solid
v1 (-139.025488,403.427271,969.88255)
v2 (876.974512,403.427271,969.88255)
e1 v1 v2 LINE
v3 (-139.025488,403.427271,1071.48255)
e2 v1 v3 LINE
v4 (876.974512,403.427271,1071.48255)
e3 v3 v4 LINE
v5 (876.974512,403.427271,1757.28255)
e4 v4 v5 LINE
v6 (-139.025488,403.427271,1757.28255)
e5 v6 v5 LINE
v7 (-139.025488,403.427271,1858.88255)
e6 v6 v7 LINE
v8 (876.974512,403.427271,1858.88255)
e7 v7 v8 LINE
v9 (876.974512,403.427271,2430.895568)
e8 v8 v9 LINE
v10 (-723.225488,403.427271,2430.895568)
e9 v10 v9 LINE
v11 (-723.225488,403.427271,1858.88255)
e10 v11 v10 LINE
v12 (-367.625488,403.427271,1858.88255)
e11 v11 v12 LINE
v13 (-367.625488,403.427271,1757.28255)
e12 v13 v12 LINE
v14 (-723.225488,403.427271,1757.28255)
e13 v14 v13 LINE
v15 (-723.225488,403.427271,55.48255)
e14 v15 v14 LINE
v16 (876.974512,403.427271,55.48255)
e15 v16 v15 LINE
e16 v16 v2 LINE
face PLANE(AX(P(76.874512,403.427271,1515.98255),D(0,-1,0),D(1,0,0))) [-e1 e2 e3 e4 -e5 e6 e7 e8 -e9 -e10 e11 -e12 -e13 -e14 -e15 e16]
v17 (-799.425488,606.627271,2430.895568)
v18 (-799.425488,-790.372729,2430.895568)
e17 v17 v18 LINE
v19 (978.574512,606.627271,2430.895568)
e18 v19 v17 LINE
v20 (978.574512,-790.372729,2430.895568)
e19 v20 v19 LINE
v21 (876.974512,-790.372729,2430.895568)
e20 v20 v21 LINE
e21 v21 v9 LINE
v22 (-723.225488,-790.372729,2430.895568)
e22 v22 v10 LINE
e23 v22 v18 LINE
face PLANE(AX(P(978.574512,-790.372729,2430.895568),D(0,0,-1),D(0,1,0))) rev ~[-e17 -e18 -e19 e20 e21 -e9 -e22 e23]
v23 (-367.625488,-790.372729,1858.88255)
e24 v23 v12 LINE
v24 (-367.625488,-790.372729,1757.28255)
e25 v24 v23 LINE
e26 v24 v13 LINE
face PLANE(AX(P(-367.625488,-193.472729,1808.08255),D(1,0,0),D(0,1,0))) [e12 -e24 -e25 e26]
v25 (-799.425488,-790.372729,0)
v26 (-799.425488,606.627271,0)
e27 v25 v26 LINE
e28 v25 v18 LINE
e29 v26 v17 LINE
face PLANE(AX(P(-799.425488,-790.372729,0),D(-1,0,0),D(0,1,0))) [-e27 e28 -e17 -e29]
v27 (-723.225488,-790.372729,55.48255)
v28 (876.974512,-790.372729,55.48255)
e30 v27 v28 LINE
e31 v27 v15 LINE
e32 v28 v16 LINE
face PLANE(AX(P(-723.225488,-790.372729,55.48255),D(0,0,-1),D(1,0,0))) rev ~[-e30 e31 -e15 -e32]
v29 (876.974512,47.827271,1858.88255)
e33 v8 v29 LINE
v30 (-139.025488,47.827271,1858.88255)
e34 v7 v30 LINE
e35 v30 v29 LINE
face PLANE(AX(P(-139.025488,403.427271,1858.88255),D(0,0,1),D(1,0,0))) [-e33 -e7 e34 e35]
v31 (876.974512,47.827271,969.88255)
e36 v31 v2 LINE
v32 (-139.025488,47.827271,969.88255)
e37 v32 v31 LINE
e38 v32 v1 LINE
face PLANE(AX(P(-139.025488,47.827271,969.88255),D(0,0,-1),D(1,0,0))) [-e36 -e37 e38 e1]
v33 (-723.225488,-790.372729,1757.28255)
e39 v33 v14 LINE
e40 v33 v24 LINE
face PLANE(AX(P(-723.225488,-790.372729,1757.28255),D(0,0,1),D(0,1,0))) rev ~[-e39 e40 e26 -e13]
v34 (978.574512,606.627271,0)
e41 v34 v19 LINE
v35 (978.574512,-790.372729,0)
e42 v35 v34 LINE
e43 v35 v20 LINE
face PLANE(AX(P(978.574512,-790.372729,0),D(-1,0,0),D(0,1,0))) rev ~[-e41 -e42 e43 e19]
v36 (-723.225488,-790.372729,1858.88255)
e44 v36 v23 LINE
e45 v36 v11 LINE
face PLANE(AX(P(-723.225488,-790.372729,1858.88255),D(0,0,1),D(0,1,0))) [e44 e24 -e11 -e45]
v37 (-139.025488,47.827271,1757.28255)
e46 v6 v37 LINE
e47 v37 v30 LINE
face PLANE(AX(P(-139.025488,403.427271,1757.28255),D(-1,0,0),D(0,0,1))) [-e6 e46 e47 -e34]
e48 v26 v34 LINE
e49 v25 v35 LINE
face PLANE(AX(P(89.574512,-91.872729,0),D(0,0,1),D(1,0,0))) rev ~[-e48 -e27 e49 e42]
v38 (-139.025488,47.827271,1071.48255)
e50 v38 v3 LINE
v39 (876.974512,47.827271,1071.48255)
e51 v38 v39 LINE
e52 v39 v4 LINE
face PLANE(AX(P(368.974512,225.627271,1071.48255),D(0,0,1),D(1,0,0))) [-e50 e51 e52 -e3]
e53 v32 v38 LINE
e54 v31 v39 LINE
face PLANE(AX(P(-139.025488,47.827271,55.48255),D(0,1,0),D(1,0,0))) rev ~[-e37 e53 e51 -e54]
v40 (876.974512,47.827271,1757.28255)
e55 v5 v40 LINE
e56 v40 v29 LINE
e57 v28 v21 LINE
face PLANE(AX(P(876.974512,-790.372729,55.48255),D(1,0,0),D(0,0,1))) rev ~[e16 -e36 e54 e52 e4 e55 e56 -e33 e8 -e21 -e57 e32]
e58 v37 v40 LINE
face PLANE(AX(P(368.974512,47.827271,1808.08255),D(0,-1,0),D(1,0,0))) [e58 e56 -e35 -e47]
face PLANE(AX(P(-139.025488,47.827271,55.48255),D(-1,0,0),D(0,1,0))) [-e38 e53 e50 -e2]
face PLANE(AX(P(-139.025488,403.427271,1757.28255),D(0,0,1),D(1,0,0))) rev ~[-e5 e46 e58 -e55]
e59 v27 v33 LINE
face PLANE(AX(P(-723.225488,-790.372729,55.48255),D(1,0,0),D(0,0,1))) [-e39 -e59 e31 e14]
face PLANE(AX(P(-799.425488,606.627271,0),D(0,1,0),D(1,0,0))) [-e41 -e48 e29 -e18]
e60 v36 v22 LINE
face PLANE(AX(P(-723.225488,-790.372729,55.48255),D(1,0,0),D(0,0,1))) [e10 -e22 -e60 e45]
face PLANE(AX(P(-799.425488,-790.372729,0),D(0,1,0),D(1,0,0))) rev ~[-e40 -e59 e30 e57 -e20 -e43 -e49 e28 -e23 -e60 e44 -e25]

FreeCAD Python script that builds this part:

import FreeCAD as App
import Part
import Sketcher

V = App.Vector
Q = App.Units.Quantity


def add_polygon(sketch, points):
    """Adds a closed chain of lines whose ends are joined by coincident constraints."""
    first, n = sketch.GeometryCount, len(points)
    for a, b in zip(points, points[1:] + points[:1]):
        sketch.addGeometry(Part.LineSegment(App.Vector(*a, 0), App.Vector(*b, 0)), False)
    for i in range(n):
        sketch.addConstraint(Sketcher.Constraint("Coincident", first + i, 2, first + (i + 1) % n, 1))

doc = App.newDocument("Part")
params = doc.addObject("Spreadsheet::Sheet", "Params")
for row, (alias, value) in enumerate([
    ("sketch1_width", "70 in"),
    ("sketch1_height", "55 in"),
    ("pad1_length", "2976.48255 mm"),
    ("sketch2_width", "63 in"),
    ("sketch2_height", "115 in"),
    ("pocket1_length", "47 in"),
    ("sketch3_width", "40 in"),
    ("sketch3_height", "14 in"),
    ("pad2_length", "40 in"),
    ("sketch4_width", "40 in"),
    ("sketch4_height", "36 in"),
    ("pocket2_length", "14 in"),
    ("sketch5_width", "47 in"),
    ("sketch5_height", "4 in"),
    ("pad3_length", "14 in"),
    ("sketch6_width", "40 in"),
    ("sketch6_height", "4 in"),
    ("pad4_length", "14 in"),
    ("sketch7_width", "55 in"),
    ("pocket3_length", "100 in"),
], start=1):
    params.set(f"A{row}", alias)
    params.set(f"B{row}", "=" + value)
    params.setAlias(f"B{row}", alias)

body = doc.addObject("PartDesign::Body", "Body")

sketch1 = body.newObject("Sketcher::SketchObject", "Sketch")
sketch1.AttachmentSupport = (doc.getObject("XY_Plane"), [""])
sketch1.MapMode = "FlatFace"
add_polygon(sketch1, [(-799, 607), (-799, -790), (979, -790), (979, 607)])
sketch1.addConstraint(Sketcher.Constraint("Vertical", 0))
sketch1.addConstraint(Sketcher.Constraint("Horizontal", 1))
sketch1.addConstraint(Sketcher.Constraint("Vertical", 2))
sketch1.addConstraint(Sketcher.Constraint("Horizontal", 3))
sketch1.addConstraint(Sketcher.Constraint("DistanceX", 1, 1, 1, 2, Q("70 in")))
sketch1.addConstraint(Sketcher.Constraint("DistanceY", 0, 2, 0, 1, Q("55 in")))
sketch1.addConstraint(Sketcher.Constraint("DistanceX", 0, 2, -1, 1, Q("799.425488 mm")))
sketch1.addConstraint(Sketcher.Constraint("DistanceY", 0, 2, -1, 1, Q("790.372729 mm")))
sketch1.setExpression("Constraints[8]", "Params.sketch1_width")
sketch1.setExpression("Constraints[9]", "Params.sketch1_height")
pad1 = body.newObject("PartDesign::Pad", "Pad")
pad1.Profile = sketch1
pad1.setExpression("Length", "Params.pad1_length")

sketch2 = body.newObject("Sketcher::SketchObject", "Sketch001")
sketch2.AttachmentSupport = (doc.getObject("XZ_Plane"), [""])
sketch2.MapMode = "FlatFace"
sketch2.AttachmentOffset = App.Placement(V(0, 0, 790.372729), App.Rotation())
add_polygon(sketch2, [(-723, 2976), (-723, 55), (877, 55), (877, 2976)])
sketch2.addConstraint(Sketcher.Constraint("Vertical", 0))
sketch2.addConstraint(Sketcher.Constraint("Horizontal", 1))
sketch2.addConstraint(Sketcher.Constraint("Vertical", 2))
sketch2.addConstraint(Sketcher.Constraint("Horizontal", 3))
sketch2.addConstraint(Sketcher.Constraint("DistanceX", 1, 1, 1, 2, Q("63 in")))
sketch2.addConstraint(Sketcher.Constraint("DistanceY", 0, 2, 0, 1, Q("115 in")))
sketch2.addConstraint(Sketcher.Constraint("DistanceX", 0, 2, -1, 1, Q("723.225488 mm")))
sketch2.addConstraint(Sketcher.Constraint("DistanceY", -1, 1, 0, 2, Q("55.48255 mm")))
sketch2.setExpression("Constraints[8]", "Params.sketch2_width")
sketch2.setExpression("Constraints[9]", "Params.sketch2_height")
pocket1 = body.newObject("PartDesign::Pocket", "Pocket")
pocket1.Profile = sketch2
pocket1.setExpression("Length", "Params.pocket1_length")

sketch3 = body.newObject("Sketcher::SketchObject", "Sketch002")
sketch3.AttachmentSupport = (doc.getObject("XY_Plane"), [""])
sketch3.MapMode = "FlatFace"
sketch3.AttachmentOffset = App.Placement(V(0, 0, 55.48255), App.Rotation())
add_polygon(sketch3, [(-139, 403), (-139, 48), (877, 48), (877, 403)])
sketch3.addConstraint(Sketcher.Constraint("Vertical", 0))
sketch3.addConstraint(Sketcher.Constraint("Horizontal", 1))
sketch3.addConstraint(Sketcher.Constraint("Vertical", 2))
sketch3.addConstraint(Sketcher.Constraint("Horizontal", 3))
sketch3.addConstraint(Sketcher.Constraint("DistanceX", 1, 1, 1, 2, Q("40 in")))
sketch3.addConstraint(Sketcher.Constraint("DistanceY", 0, 2, 0, 1, Q("14 in")))
sketch3.addConstraint(Sketcher.Constraint("DistanceX", 0, 2, -1, 1, Q("139.025488 mm")))
sketch3.addConstraint(Sketcher.Constraint("DistanceY", -1, 1, 0, 2, Q("47.827271 mm")))
sketch3.setExpression("Constraints[8]", "Params.sketch3_width")
sketch3.setExpression("Constraints[9]", "Params.sketch3_height")
pad2 = body.newObject("PartDesign::Pad", "Pad001")
pad2.Profile = sketch3
pad2.setExpression("Length", "Params.pad2_length")

sketch4 = body.newObject("Sketcher::SketchObject", "Sketch003")
sketch4.AttachmentSupport = (doc.getObject("XZ_Plane"), [""])
sketch4.MapMode = "FlatFace"
sketch4.AttachmentOffset = App.Placement(V(0, 0, -47.827271), App.Rotation())
add_polygon(sketch4, [(-139, 970), (-139, 55), (877, 55), (877, 970)])
sketch4.addConstraint(Sketcher.Constraint("Vertical", 0))
sketch4.addConstraint(Sketcher.Constraint("Horizontal", 1))
sketch4.addConstraint(Sketcher.Constraint("Vertical", 2))
sketch4.addConstraint(Sketcher.Constraint("Horizontal", 3))
sketch4.addConstraint(Sketcher.Constraint("DistanceX", 1, 1, 1, 2, Q("40 in")))
sketch4.addConstraint(Sketcher.Constraint("DistanceY", 0, 2, 0, 1, Q("36 in")))
sketch4.addConstraint(Sketcher.Constraint("DistanceX", 0, 2, -1, 1, Q("139.025488 mm")))
sketch4.addConstraint(Sketcher.Constraint("DistanceY", -1, 1, 0, 2, Q("55.48255 mm")))
sketch4.setExpression("Constraints[8]", "Params.sketch4_width")
sketch4.setExpression("Constraints[9]", "Params.sketch4_height")
pocket2 = body.newObject("PartDesign::Pocket", "Pocket001")
pocket2.Profile = sketch4
pocket2.setExpression("Length", "Params.pocket2_length")

sketch5 = body.newObject("Sketcher::SketchObject", "Sketch004")
sketch5.AttachmentSupport = (doc.getObject("YZ_Plane"), [""])
sketch5.MapMode = "FlatFace"
sketch5.AttachmentOffset = App.Placement(V(0, 0, -723.225488), App.Rotation())
add_polygon(sketch5, [(-790, 1859), (-790, 1757), (403, 1757), (403, 1859)])
sketch5.addConstraint(Sketcher.Constraint("Vertical", 0))
sketch5.addConstraint(Sketcher.Constraint("Horizontal", 1))
sketch5.addConstraint(Sketcher.Constraint("Vertical", 2))
sketch5.addConstraint(Sketcher.Constraint("Horizontal", 3))
sketch5.addConstraint(Sketcher.Constraint("DistanceX", 1, 1, 1, 2, Q("47 in")))
sketch5.addConstraint(Sketcher.Constraint("DistanceY", 0, 2, 0, 1, Q("4 in")))
sketch5.addConstraint(Sketcher.Constraint("DistanceX", 0, 2, -1, 1, Q("790.372729 mm")))
sketch5.addConstraint(Sketcher.Constraint("DistanceY", -1, 1, 0, 2, Q("1757.28255 mm")))
sketch5.setExpression("Constraints[8]", "Params.sketch5_width")
sketch5.setExpression("Constraints[9]", "Params.sketch5_height")
pad3 = body.newObject("PartDesign::Pad", "Pad002")
pad3.Profile = sketch5
pad3.setExpression("Length", "Params.pad3_length")

sketch6 = body.newObject("Sketcher::SketchObject", "Sketch005")
sketch6.AttachmentSupport = (doc.getObject("XZ_Plane"), [""])
sketch6.MapMode = "FlatFace"
sketch6.AttachmentOffset = App.Placement(V(0, 0, -403.427271), App.Rotation())
add_polygon(sketch6, [(-139, 1859), (-139, 1757), (877, 1757), (877, 1859)])
sketch6.addConstraint(Sketcher.Constraint("Vertical", 0))
sketch6.addConstraint(Sketcher.Constraint("Horizontal", 1))
sketch6.addConstraint(Sketcher.Constraint("Vertical", 2))
sketch6.addConstraint(Sketcher.Constraint("Horizontal", 3))
sketch6.addConstraint(Sketcher.Constraint("DistanceX", 1, 1, 1, 2, Q("40 in")))
sketch6.addConstraint(Sketcher.Constraint("DistanceY", 0, 2, 0, 1, Q("4 in")))
sketch6.addConstraint(Sketcher.Constraint("DistanceX", 0, 2, -1, 1, Q("139.025488 mm")))
sketch6.addConstraint(Sketcher.Constraint("DistanceY", -1, 1, 0, 2, Q("1757.28255 mm")))
sketch6.setExpression("Constraints[8]", "Params.sketch6_width")
sketch6.setExpression("Constraints[9]", "Params.sketch6_height")
pad4 = body.newObject("PartDesign::Pad", "Pad003")
pad4.Profile = sketch6
pad4.setExpression("Length", "Params.pad4_length")

sketch7 = body.newObject("Sketcher::SketchObject", "Sketch006")
sketch7.AttachmentSupport = (doc.getObject("YZ_Plane"), [""])
sketch7.MapMode = "FlatFace"
sketch7.AttachmentOffset = App.Placement(V(0, 0, 978.574512), App.Rotation())
add_polygon(sketch7, [(-790, 2976), (-790, 2431), (607, 2431), (607, 2976)])
sketch7.addConstraint(Sketcher.Constraint("Vertical", 0))
sketch7.addConstraint(Sketcher.Constraint("Horizontal", 1))
sketch7.addConstraint(Sketcher.Constraint("Vertical", 2))
sketch7.addConstraint(Sketcher.Constraint("Horizontal", 3))
sketch7.addConstraint(Sketcher.Constraint("DistanceX", 1, 1, 1, 2, Q("55 in")))
sketch7.addConstraint(Sketcher.Constraint("DistanceY", 0, 2, 0, 1, Q("545.586983 mm")))
sketch7.addConstraint(Sketcher.Constraint("DistanceX", 0, 2, -1, 1, Q("790.372729 mm")))
sketch7.addConstraint(Sketcher.Constraint("DistanceY", -1, 1, 2, 2, Q("2976.48255 mm")))
sketch7.setExpression("Constraints[8]", "Params.sketch7_width")
pocket3 = body.newObject("PartDesign::Pocket", "Pocket002")
pocket3.Profile = sketch7
pocket3.setExpression("Length", "Params.pocket3_length")

doc.recompute()
